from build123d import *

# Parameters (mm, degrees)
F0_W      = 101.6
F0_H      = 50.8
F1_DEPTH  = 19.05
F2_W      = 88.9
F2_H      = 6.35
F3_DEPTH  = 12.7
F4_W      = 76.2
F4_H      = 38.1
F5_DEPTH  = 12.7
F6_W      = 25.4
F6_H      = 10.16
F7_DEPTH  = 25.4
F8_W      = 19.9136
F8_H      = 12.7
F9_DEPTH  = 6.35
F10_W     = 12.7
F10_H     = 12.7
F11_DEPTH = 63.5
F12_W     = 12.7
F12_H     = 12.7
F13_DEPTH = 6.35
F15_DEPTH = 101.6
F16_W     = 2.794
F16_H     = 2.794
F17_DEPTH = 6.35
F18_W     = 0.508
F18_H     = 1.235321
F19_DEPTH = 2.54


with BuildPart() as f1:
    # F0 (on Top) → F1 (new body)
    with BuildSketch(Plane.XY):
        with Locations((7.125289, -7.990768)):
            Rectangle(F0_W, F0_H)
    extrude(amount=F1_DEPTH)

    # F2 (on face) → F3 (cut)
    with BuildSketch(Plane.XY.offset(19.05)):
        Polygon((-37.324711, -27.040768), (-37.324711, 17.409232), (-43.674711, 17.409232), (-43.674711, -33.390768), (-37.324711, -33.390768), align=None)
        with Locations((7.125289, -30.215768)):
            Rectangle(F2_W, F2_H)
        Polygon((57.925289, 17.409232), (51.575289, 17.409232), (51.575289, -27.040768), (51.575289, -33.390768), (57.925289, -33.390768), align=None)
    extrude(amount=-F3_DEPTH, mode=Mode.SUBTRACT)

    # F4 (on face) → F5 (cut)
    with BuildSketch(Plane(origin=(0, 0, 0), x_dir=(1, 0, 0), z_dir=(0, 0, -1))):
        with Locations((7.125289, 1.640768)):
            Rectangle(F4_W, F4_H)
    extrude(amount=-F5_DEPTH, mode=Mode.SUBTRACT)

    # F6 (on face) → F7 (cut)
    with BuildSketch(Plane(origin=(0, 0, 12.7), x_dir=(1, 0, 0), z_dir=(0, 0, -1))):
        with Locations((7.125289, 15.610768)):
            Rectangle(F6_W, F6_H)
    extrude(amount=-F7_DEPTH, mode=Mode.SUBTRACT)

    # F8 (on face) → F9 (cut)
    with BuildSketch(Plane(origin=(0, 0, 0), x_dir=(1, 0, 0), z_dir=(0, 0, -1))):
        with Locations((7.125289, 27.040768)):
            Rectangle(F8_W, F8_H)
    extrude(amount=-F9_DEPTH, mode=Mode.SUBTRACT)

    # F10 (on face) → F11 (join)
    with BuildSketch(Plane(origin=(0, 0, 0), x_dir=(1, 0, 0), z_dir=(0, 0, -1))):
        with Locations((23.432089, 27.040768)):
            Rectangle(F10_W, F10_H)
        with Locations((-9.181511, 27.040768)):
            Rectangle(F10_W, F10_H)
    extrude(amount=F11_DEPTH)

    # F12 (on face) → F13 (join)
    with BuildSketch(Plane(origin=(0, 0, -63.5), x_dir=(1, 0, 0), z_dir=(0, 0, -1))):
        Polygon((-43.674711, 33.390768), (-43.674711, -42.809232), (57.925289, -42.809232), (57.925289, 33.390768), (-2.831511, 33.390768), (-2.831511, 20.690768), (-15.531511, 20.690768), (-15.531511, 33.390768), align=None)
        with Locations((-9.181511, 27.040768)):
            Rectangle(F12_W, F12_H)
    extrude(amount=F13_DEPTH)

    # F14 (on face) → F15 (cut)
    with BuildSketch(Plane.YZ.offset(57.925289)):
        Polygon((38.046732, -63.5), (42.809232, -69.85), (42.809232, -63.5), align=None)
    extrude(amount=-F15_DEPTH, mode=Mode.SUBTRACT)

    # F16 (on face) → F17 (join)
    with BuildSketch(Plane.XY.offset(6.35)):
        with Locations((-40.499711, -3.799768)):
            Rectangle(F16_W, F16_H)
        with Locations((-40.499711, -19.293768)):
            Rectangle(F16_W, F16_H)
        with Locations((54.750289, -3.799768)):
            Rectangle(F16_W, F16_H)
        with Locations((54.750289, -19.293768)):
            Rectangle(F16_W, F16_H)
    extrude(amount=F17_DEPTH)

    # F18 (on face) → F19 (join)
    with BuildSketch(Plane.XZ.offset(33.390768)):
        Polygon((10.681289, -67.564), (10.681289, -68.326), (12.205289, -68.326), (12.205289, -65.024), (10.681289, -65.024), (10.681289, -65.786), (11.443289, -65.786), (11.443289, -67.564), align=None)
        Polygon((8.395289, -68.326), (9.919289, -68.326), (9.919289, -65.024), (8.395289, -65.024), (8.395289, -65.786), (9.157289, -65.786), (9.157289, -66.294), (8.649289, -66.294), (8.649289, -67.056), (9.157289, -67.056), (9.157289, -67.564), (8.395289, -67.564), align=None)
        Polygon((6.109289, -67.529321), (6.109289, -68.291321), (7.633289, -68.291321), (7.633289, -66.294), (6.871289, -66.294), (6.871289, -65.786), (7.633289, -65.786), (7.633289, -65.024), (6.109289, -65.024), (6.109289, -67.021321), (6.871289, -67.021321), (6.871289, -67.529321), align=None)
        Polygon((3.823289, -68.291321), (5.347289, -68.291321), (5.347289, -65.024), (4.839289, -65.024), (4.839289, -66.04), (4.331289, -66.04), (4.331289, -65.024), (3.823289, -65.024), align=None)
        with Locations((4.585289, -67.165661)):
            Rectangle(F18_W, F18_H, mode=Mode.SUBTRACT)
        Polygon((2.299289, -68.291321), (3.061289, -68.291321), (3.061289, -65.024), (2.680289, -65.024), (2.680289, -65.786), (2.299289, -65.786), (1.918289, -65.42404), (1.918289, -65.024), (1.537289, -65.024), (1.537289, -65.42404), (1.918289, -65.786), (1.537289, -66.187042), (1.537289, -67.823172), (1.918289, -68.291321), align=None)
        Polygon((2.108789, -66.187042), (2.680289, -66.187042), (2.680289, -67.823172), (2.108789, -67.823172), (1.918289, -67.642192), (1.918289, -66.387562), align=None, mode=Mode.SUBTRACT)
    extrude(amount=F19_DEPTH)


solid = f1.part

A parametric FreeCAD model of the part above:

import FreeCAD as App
import Part
import Sketcher

V = App.Vector
Q = App.Units.Quantity

doc = App.newDocument("Part")
body = doc.addObject("PartDesign::Body", "Body")

# Sketch on XY plane
sketch1 = body.newObject("Sketcher::SketchObject", "Sketch")
sketch1.AttachmentSupport = (doc.getObject("XY_Plane"), [""])
sketch1.MapMode = "FlatFace"
sketch1.addGeometry(Part.LineSegment(V(-44, 17, 0), V(-44, -33, 0)), False)
sketch1.addGeometry(Part.LineSegment(V(-44, -33, 0), V(58, -33, 0)), False)
sketch1.addGeometry(Part.LineSegment(V(58, -33, 0), V(58, 17, 0)), False)
sketch1.addGeometry(Part.LineSegment(V(58, 17, 0), V(-44, 17, 0)), False)
sketch1.addConstraint(Sketcher.Constraint("Coincident", 0, 2, 1, 1))
sketch1.addConstraint(Sketcher.Constraint("Coincident", 1, 2, 2, 1))
sketch1.addConstraint(Sketcher.Constraint("Coincident", 2, 2, 3, 1))
sketch1.addConstraint(Sketcher.Constraint("Coincident", 3, 2, 0, 1))
sketch1.addConstraint(Sketcher.Constraint("Vertical", 0))
sketch1.addConstraint(Sketcher.Constraint("Horizontal", 1))
sketch1.addConstraint(Sketcher.Constraint("Vertical", 2))
sketch1.addConstraint(Sketcher.Constraint("Horizontal", 3))
sketch1.addConstraint(Sketcher.Constraint("DistanceX", 1, 1, 1, 2, Q("4 in")))
sketch1.addConstraint(Sketcher.Constraint("DistanceY", 0, 2, 0, 1, Q("2 in")))
sketch1.addConstraint(Sketcher.Constraint("DistanceX", 0, 2, -1, 1, Q("43.674711 mm")))
sketch1.addConstraint(Sketcher.Constraint("DistanceY", -1, 1, 2, 2, Q("17.409232 mm")))
pad1 = body.newObject("PartDesign::Pad", "Pad")
pad1.Profile = sketch1
pad1.Length = Q("0.75 in")

# Sketch on XY plane
sketch2 = body.newObject("Sketcher::SketchObject", "Sketch001")
sketch2.AttachmentSupport = (doc.getObject("XY_Plane"), [""])
sketch2.MapMode = "FlatFace"
sketch2.AttachmentOffset = App.Placement(V(0, 0, 0.75 * 25.4), App.Rotation())
sketch2.addGeometry(Part.LineSegment(V(-37, 17, 0), V(-44, 17, 0)), False)
sketch2.addGeometry(Part.LineSegment(V(-44, 17, 0), V(-44, -33, 0)), False)
sketch2.addGeometry(Part.LineSegment(V(-44, -33, 0), V(58, -33, 0)), False)
sketch2.addGeometry(Part.LineSegment(V(58, -33, 0), V(58, 17, 0)), False)
sketch2.addGeometry(Part.LineSegment(V(58, 17, 0), V(52, 17, 0)), False)
sketch2.addGeometry(Part.LineSegment(V(52, 17, 0), V(52, -27, 0)), False)
sketch2.addGeometry(Part.LineSegment(V(52, -27, 0), V(-37, -27, 0)), False)
sketch2.addGeometry(Part.LineSegment(V(-37, -27, 0), V(-37, 17, 0)), False)
sketch2.addConstraint(Sketcher.Constraint("Coincident", 0, 2, 1, 1))
sketch2.addConstraint(Sketcher.Constraint("Coincident", 1, 2, 2, 1))
sketch2.addConstraint(Sketcher.Constraint("Coincident", 2, 2, 3, 1))
sketch2.addConstraint(Sketcher.Constraint("Coincident", 3, 2, 4, 1))
sketch2.addConstraint(Sketcher.Constraint("Coincident", 4, 2, 5, 1))
sketch2.addConstraint(Sketcher.Constraint("Coincident", 5, 2, 6, 1))
sketch2.addConstraint(Sketcher.Constraint("Coincident", 6, 2, 7, 1))
sketch2.addConstraint(Sketcher.Constraint("Coincident", 7, 2, 0, 1))
sketch2.addConstraint(Sketcher.Constraint("Horizontal", 0))
sketch2.addConstraint(Sketcher.Constraint("Vertical", 1))
sketch2.addConstraint(Sketcher.Constraint("Horizontal", 2))
sketch2.addConstraint(Sketcher.Constraint("Vertical", 3))
sketch2.addConstraint(Sketcher.Constraint("Horizontal", 4))
sketch2.addConstraint(Sketcher.Constraint("Vertical", 5))
sketch2.addConstraint(Sketcher.Constraint("Horizontal", 6))
sketch2.addConstraint(Sketcher.Constraint("Vertical", 7))
sketch2.addConstraint(Sketcher.Constraint("Horizontal", 0, 2, 3, 2))
sketch2.addConstraint(Sketcher.Constraint("Equal", 0, 4))
sketch2.addConstraint(Sketcher.Constraint("DistanceX", 2, 1, 2, 2, Q("4 in")))
sketch2.addConstraint(Sketcher.Constraint("DistanceY", 1, 2, 1, 1, Q("2 in")))
sketch2.addConstraint(Sketcher.Constraint("DistanceX", 6, 2, 6, 1, Q("3.5 in")))
sketch2.addConstraint(Sketcher.Constraint("DistanceY", 5, 2, 5, 1, Q("1.75 in")))
sketch2.addConstraint(Sketcher.Constraint("DistanceX", 0, 2, -1, 1, Q("43.674711 mm")))
sketch2.addConstraint(Sketcher.Constraint("DistanceY", -1, 1, 0, 2, Q("17.409232 mm")))
pocket1 = body.newObject("PartDesign::Pocket", "Pocket")
pocket1.Profile = sketch2
pocket1.Length = Q("0.5 in")

# Sketch on XY plane
sketch3 = body.newObject("Sketcher::SketchObject", "Sketch002")
sketch3.AttachmentSupport = (doc.getObject("XY_Plane"), [""])
sketch3.MapMode = "FlatFace"
sketch3.addGeometry(Part.LineSegment(V(-31, -21, 0), V(-31, 17, 0)), False)
sketch3.addGeometry(Part.LineSegment(V(-31, 17, 0), V(45, 17, 0)), False)
sketch3.addGeometry(Part.LineSegment(V(45, 17, 0), V(45, -21, 0)), False)
sketch3.addGeometry(Part.LineSegment(V(45, -21, 0), V(-31, -21, 0)), False)
sketch3.addConstraint(Sketcher.Constraint("Coincident", 0, 2, 1, 1))
sketch3.addConstraint(Sketcher.Constraint("Coincident", 1, 2, 2, 1))
sketch3.addConstraint(Sketcher.Constraint("Coincident", 2, 2, 3, 1))
sketch3.addConstraint(Sketcher.Constraint("Coincident", 3, 2, 0, 1))
sketch3.addConstraint(Sketcher.Constraint("Vertical", 0))
sketch3.addConstraint(Sketcher.Constraint("Horizontal", 1))
sketch3.addConstraint(Sketcher.Constraint("Vertical", 2))
sketch3.addConstraint(Sketcher.Constraint("Horizontal", 3))
sketch3.addConstraint(Sketcher.Constraint("DistanceX", 1, 1, 1, 2, Q("3 in")))
sketch3.addConstraint(Sketcher.Constraint("DistanceY", 0, 1, 0, 2, Q("1.5 in")))
sketch3.addConstraint(Sketcher.Constraint("DistanceX", 0, 2, -1, 1, Q("30.974711 mm")))
sketch3.addConstraint(Sketcher.Constraint("DistanceY", -1, 1, 0, 2, Q("17.409232 mm")))
pocket2 = body.newObject("PartDesign::Pocket", "Pocket001")
pocket2.Profile = sketch3
pocket2.Length = Q("0.5 in")
pocket2.Reversed = True

# Sketch on XY plane
sketch4 = body.newObject("Sketcher::SketchObject", "Sketch003")
sketch4.AttachmentSupport = (doc.getObject("XY_Plane"), [""])
sketch4.MapMode = "FlatFace"
sketch4.AttachmentOffset = App.Placement(V(0, 0, 0.5 * 25.4), App.Rotation())
sketch4.addGeometry(Part.LineSegment(V(-6, -21, 0), V(-6, -11, 0)), False)
sketch4.addGeometry(Part.LineSegment(V(-6, -11, 0), V(20, -11, 0)), False)
sketch4.addGeometry(Part.LineSegment(V(20, -11, 0), V(20, -21, 0)), False)
sketch4.addGeometry(Part.LineSegment(V(20, -21, 0), V(-6, -21, 0)), False)
sketch4.addConstraint(Sketcher.Constraint("Coincident", 0, 2, 1, 1))
sketch4.addConstraint(Sketcher.Constraint("Coincident", 1, 2, 2, 1))
sketch4.addConstraint(Sketcher.Constraint("Coincident", 2, 2, 3, 1))
sketch4.addConstraint(Sketcher.Constraint("Coincident", 3, 2, 0, 1))
sketch4.addConstraint(Sketcher.Constraint("Vertical", 0))
sketch4.addConstraint(Sketcher.Constraint("Horizontal", 1))
sketch4.addConstraint(Sketcher.Constraint("Vertical", 2))
sketch4.addConstraint(Sketcher.Constraint("Horizontal", 3))
sketch4.addConstraint(Sketcher.Constraint("DistanceX", 1, 1, 1, 2, Q("1 in")))
sketch4.addConstraint(Sketcher.Constraint("DistanceY", 0, 1, 0, 2, Q("0.4 in")))
sketch4.addConstraint(Sketcher.Constraint("DistanceX", 0, 2, -1, 1, Q("5.574711 mm")))
sketch4.addConstraint(Sketcher.Constraint("DistanceY", 0, 2, -1, 1, Q("10.530768 mm")))
pocket3 = body.newObject("PartDesign::Pocket", "Pocket002")
pocket3.Profile = sketch4
pocket3.Length = Q("1 in")
pocket3.Reversed = True

# Sketch on XY plane
sketch5 = body.newObject("Sketcher::SketchObject", "Sketch004")
sketch5.AttachmentSupport = (doc.getObject("XY_Plane"), [""])
sketch5.MapMode = "FlatFace"
sketch5.addGeometry(Part.LineSegment(V(-3, -33, 0), V(-3, -21, 0)), False)
sketch5.addGeometry(Part.LineSegment(V(-3, -21, 0), V(17, -21, 0)), False)
sketch5.addGeometry(Part.LineSegment(V(17, -21, 0), V(17, -33, 0)), False)
sketch5.addGeometry(Part.LineSegment(V(17, -33, 0), V(-3, -33, 0)), False)
sketch5.addConstraint(Sketcher.Constraint("Coincident", 0, 2, 1, 1))
sketch5.addConstraint(Sketcher.Constraint("Coincident", 1, 2, 2, 1))
sketch5.addConstraint(Sketcher.Constraint("Coincident", 2, 2, 3, 1))
sketch5.addConstraint(Sketcher.Constraint("Coincident", 3, 2, 0, 1))
sketch5.addConstraint(Sketcher.Constraint("Vertical", 0))
sketch5.addConstraint(Sketcher.Constraint("Horizontal", 1))
sketch5.addConstraint(Sketcher.Constraint("Vertical", 2))
sketch5.addConstraint(Sketcher.Constraint("Horizontal", 3))
sketch5.addConstraint(Sketcher.Constraint("DistanceY", 0, 1, 0, 2, Q("0.5 in")))
sketch5.addConstraint(Sketcher.Constraint("DistanceX", 1, 1, 1, 2, Q("0.784 in")))
sketch5.addConstraint(Sketcher.Constraint("DistanceX", 0, 2, -1, 1, Q("2.831511 mm")))
sketch5.addConstraint(Sketcher.Constraint("DistanceY", 0, 2, -1, 1, Q("20.690768 mm")))
pocket4 = body.newObject("PartDesign::Pocket", "Pocket003")
pocket4.Profile = sketch5
pocket4.Length = Q("0.25 in")
pocket4.Reversed = True

# Sketch on XY plane
sketch6 = body.newObject("Sketcher::SketchObject", "Sketch005")
sketch6.AttachmentSupport = (doc.getObject("XY_Plane"), [""])
sketch6.MapMode = "FlatFace"
sketch6.addGeometry(Part.LineSegment(V(17, -33, 0), V(17, -21, 0)), False)
sketch6.addGeometry(Part.LineSegment(V(17, -21, 0), V(30, -21, 0)), False)
sketch6.addGeometry(Part.LineSegment(V(30, -21, 0), V(30, -33, 0)), False)
sketch6.addGeometry(Part.LineSegment(V(30, -33, 0), V(17, -33, 0)), False)
sketch6.addGeometry(Part.LineSegment(V(-16, -33, 0), V(-16, -21, 0)), False)
sketch6.addGeometry(Part.LineSegment(V(-16, -21, 0), V(-3, -21, 0)), False)
sketch6.addGeometry(Part.LineSegment(V(-3, -21, 0), V(-3, -33, 0)), False)
sketch6.addGeometry(Part.LineSegment(V(-3, -33, 0), V(-16, -33, 0)), False)
sketch6.addConstraint(Sketcher.Constraint("Coincident", 0, 2, 1, 1))
sketch6.addConstraint(Sketcher.Constraint("Coincident", 1, 2, 2, 1))
sketch6.addConstraint(Sketcher.Constraint("Coincident", 2, 2, 3, 1))
sketch6.addConstraint(Sketcher.Constraint("Coincident", 3, 2, 0, 1))
sketch6.addConstraint(Sketcher.Constraint("Coincident", 4, 2, 5, 1))
sketch6.addConstraint(Sketcher.Constraint("Coincident", 5, 2, 6, 1))
sketch6.addConstraint(Sketcher.Constraint("Coincident", 6, 2, 7, 1))
sketch6.addConstraint(Sketcher.Constraint("Coincident", 7, 2, 4, 1))
sketch6.addConstraint(Sketcher.Constraint("Vertical", 0))
sketch6.addConstraint(Sketcher.Constraint("Horizontal", 1))
sketch6.addConstraint(Sketcher.Constraint("Vertical", 2))
sketch6.addConstraint(Sketcher.Constraint("Horizontal", 3))
sketch6.addConstraint(Sketcher.Constraint("Vertical", 4))
sketch6.addConstraint(Sketcher.Constraint("Horizontal", 5))
sketch6.addConstraint(Sketcher.Constraint("Vertical", 6))
sketch6.addConstraint(Sketcher.Constraint("Horizontal", 7))
sketch6.addConstraint(Sketcher.Constraint("Horizontal", 1, 2, 4, 2))
sketch6.addConstraint(Sketcher.Constraint("Horizontal", 3, 2, 6, 2))
sketch6.addConstraint(Sketcher.Constraint("Equal", 3, 5))
sketch6.addConstraint(Sketcher.Constraint("Equal", 7, 0))
sketch6.addConstraint(Sketcher.Constraint("DistanceX", 1, 1, 1, 2, Q("0.5 in")))
sketch6.addConstraint(Sketcher.Constraint("DistanceX", 4, 2, 0, 2, Q("1.284 in")))
sketch6.addConstraint(Sketcher.Constraint("DistanceX", -1, 1, 0, 2, Q("17.082089 mm")))
sketch6.addConstraint(Sketcher.Constraint("DistanceY", 0, 2, -1, 1, Q("20.690768 mm")))
pad2 = body.newObject("PartDesign::Pad", "Pad001")
pad2.Profile = sketch6
pad2.Length = Q("2.5 in")
pad2.Reversed = True

# Sketch on XY plane
sketch7 = body.newObject("Sketcher::SketchObject", "Sketch006")
sketch7.AttachmentSupport = (doc.getObject("XY_Plane"), [""])
sketch7.MapMode = "FlatFace"
sketch7.AttachmentOffset = App.Placement(V(0, 0, -2.5 * 25.4), App.Rotation())
sketch7.addGeometry(Part.LineSegment(V(-44, -33, 0), V(-44, 43, 0)), False)
sketch7.addGeometry(Part.LineSegment(V(-44, 43, 0), V(58, 43, 0)), False)
sketch7.addGeometry(Part.LineSegment(V(58, 43, 0), V(58, -33, 0)), False)
sketch7.addGeometry(Part.LineSegment(V(58, -33, 0), V(-44, -33, 0)), False)
sketch7.addConstraint(Sketcher.Constraint("Coincident", 0, 2, 1, 1))
sketch7.addConstraint(Sketcher.Constraint("Coincident", 1, 2, 2, 1))
sketch7.addConstraint(Sketcher.Constraint("Coincident", 2, 2, 3, 1))
sketch7.addConstraint(Sketcher.Constraint("Coincident", 3, 2, 0, 1))
sketch7.addConstraint(Sketcher.Constraint("Vertical", 0))
sketch7.addConstraint(Sketcher.Constraint("Horizontal", 1))
sketch7.addConstraint(Sketcher.Constraint("Vertical", 2))
sketch7.addConstraint(Sketcher.Constraint("Horizontal", 3))
sketch7.addConstraint(Sketcher.Constraint("DistanceX", 1, 1, 1, 2, Q("4 in")))
sketch7.addConstraint(Sketcher.Constraint("DistanceY", 0, 1, 0, 2, Q("3 in")))
sketch7.addConstraint(Sketcher.Constraint("DistanceX", 0, 2, -1, 1, Q("43.674711 mm")))
sketch7.addConstraint(Sketcher.Constraint("DistanceY", -1, 1, 0, 2, Q("42.809232 mm")))
pad3 = body.newObject("PartDesign::Pad", "Pad002")
pad3.Profile = sketch7
pad3.Length = Q("0.25 in")
pad3.Reversed = True

# Sketch on YZ plane
sketch8 = body.newObject("Sketcher::SketchObject", "Sketch007")
sketch8.AttachmentSupport = (doc.getObject("YZ_Plane"), [""])
sketch8.MapMode = "FlatFace"
sketch8.AttachmentOffset = App.Placement(V(0, 0, 57.925289), App.Rotation())
sketch8.addGeometry(Part.LineSegment(V(38, -63.5, 0), V(42.8, -69.8, 0)), False)
sketch8.addGeometry(Part.LineSegment(V(42.8, -69.8, 0), V(42.8, -63.5, 0)), False)
sketch8.addGeometry(Part.LineSegment(V(42.8, -63.5, 0), V(38, -63.5, 0)), False)
sketch8.addConstraint(Sketcher.Constraint("Coincident", 0, 2, 1, 1))
sketch8.addConstraint(Sketcher.Constraint("Coincident", 1, 2, 2, 1))
sketch8.addConstraint(Sketcher.Constraint("Coincident", 2, 2, 0, 1))
sketch8.addConstraint(Sketcher.Constraint("Vertical", 1))
sketch8.addConstraint(Sketcher.Constraint("Horizontal", 2))
sketch8.addConstraint(Sketcher.Constraint("DistanceY", 1, 1, 1, 2, Q("0.25 in")))
sketch8.addConstraint(Sketcher.Constraint("DistanceY", 1, 2, -1, 1, Q("2.5 in")))
sketch8.addConstraint(Sketcher.Constraint("DistanceX", 2, 2, 2, 1, Q("0.1875 in")))
sketch8.addConstraint(Sketcher.Constraint("DistanceX", -1, 1, 0, 2, Q("42.809232 mm")))
pocket5 = body.newObject("PartDesign::Pocket", "Pocket004")
pocket5.Profile = sketch8
pocket5.Length = Q("4 in")

# Sketch on XY plane
sketch9 = body.newObject("Sketcher::SketchObject", "Sketch008")
sketch9.AttachmentSupport = (doc.getObject("XY_Plane"), [""])
sketch9.MapMode = "FlatFace"
sketch9.AttachmentOffset = App.Placement(V(0, 0, 0.25 * 25.4), App.Rotation())
sketch9.addGeometry(Part.LineSegment(V(-41.9, -2.4, 0), V(-41.9, -5.2, 0)), False)
sketch9.addGeometry(Part.LineSegment(V(-41.9, -5.2, 0), V(-39.1, -5.2, 0)), False)
sketch9.addGeometry(Part.LineSegment(V(-39.1, -5.2, 0), V(-39.1, -2.4, 0)), False)
sketch9.addGeometry(Part.LineSegment(V(-39.1, -2.4, 0), V(-41.9, -2.4, 0)), False)
sketch9.addGeometry(Part.LineSegment(V(-41.9, -17.9, 0), V(-41.9, -20.7, 0)), False)
sketch9.addGeometry(Part.LineSegment(V(-41.9, -20.7, 0), V(-39.1, -20.7, 0)), False)
sketch9.addGeometry(Part.LineSegment(V(-39.1, -20.7, 0), V(-39.1, -17.9, 0)), False)
sketch9.addGeometry(Part.LineSegment(V(-39.1, -17.9, 0), V(-41.9, -17.9, 0)), False)
sketch9.addGeometry(Part.LineSegment(V(53.4, -2.4, 0), V(53.4, -5.2, 0)), False)
sketch9.addGeometry(Part.LineSegment(V(53.4, -5.2, 0), V(56.1, -5.2, 0)), False)
sketch9.addGeometry(Part.LineSegment(V(56.1, -5.2, 0), V(56.1, -2.4, 0)), False)
sketch9.addGeometry(Part.LineSegment(V(56.1, -2.4, 0), V(53.4, -2.4, 0)), False)
sketch9.addGeometry(Part.LineSegment(V(53.4, -17.9, 0), V(53.4, -20.7, 0)), False)
sketch9.addGeometry(Part.LineSegment(V(53.4, -20.7, 0), V(56.1, -20.7, 0)), False)
sketch9.addGeometry(Part.LineSegment(V(56.1, -20.7, 0), V(56.1, -17.9, 0)), False)
sketch9.addGeometry(Part.LineSegment(V(56.1, -17.9, 0), V(53.4, -17.9, 0)), False)
sketch9.addConstraint(Sketcher.Constraint("Coincident", 0, 2, 1, 1))
sketch9.addConstraint(Sketcher.Constraint("Coincident", 1, 2, 2, 1))
sketch9.addConstraint(Sketcher.Constraint("Coincident", 2, 2, 3, 1))
sketch9.addConstraint(Sketcher.Constraint("Coincident", 3, 2, 0, 1))
sketch9.addConstraint(Sketcher.Constraint("Coincident", 4, 2, 5, 1))
sketch9.addConstraint(Sketcher.Constraint("Coincident", 5, 2, 6, 1))
sketch9.addConstraint(Sketcher.Constraint("Coincident", 6, 2, 7, 1))
sketch9.addConstraint(Sketcher.Constraint("Coincident", 7, 2, 4, 1))
sketch9.addConstraint(Sketcher.Constraint("Coincident", 8, 2, 9, 1))
sketch9.addConstraint(Sketcher.Constraint("Coincident", 9, 2, 10, 1))
sketch9.addConstraint(Sketcher.Constraint("Coincident", 10, 2, 11, 1))
sketch9.addConstraint(Sketcher.Constraint("Coincident", 11, 2, 8, 1))
sketch9.addConstraint(Sketcher.Constraint("Coincident", 12, 2, 13, 1))
sketch9.addConstraint(Sketcher.Constraint("Coincident", 13, 2, 14, 1))
sketch9.addConstraint(Sketcher.Constraint("Coincident", 14, 2, 15, 1))
sketch9.addConstraint(Sketcher.Constraint("Coincident", 15, 2, 12, 1))
sketch9.addConstraint(Sketcher.Constraint("Vertical", 0))
sketch9.addConstraint(Sketcher.Constraint("Horizontal", 1))
sketch9.addConstraint(Sketcher.Constraint("Vertical", 2))
sketch9.addConstraint(Sketcher.Constraint("Horizontal", 3))
sketch9.addConstraint(Sketcher.Constraint("Vertical", 4))
sketch9.addConstraint(Sketcher.Constraint("Horizontal", 5))
sketch9.addConstraint(Sketcher.Constraint("Vertical", 6))
sketch9.addConstraint(Sketcher.Constraint("Horizontal", 7))
sketch9.addConstraint(Sketcher.Constraint("Vertical", 8))
sketch9.addConstraint(Sketcher.Constraint("Horizontal", 9))
sketch9.addConstraint(Sketcher.Constraint("Vertical", 10))
sketch9.addConstraint(Sketcher.Constraint("Horizontal", 11))
sketch9.addConstraint(Sketcher.Constraint("Vertical", 12))
sketch9.addConstraint(Sketcher.Constraint("Horizontal", 13))
sketch9.addConstraint(Sketcher.Constraint("Vertical", 14))
sketch9.addConstraint(Sketcher.Constraint("Horizontal", 15))
sketch9.addConstraint(Sketcher.Constraint("Horizontal", 1, 2, 8, 2))
sketch9.addConstraint(Sketcher.Constraint("Horizontal", 3, 2, 10, 2))
sketch9.addConstraint(Sketcher.Constraint("Horizontal", 5, 2, 12, 2))
sketch9.addConstraint(Sketcher.Constraint("Horizontal", 7, 2, 14, 2))
sketch9.addConstraint(Sketcher.Constraint("Vertical", 3, 2, 4, 2))
sketch9.addConstraint(Sketcher.Constraint("Vertical", 2, 2, 5, 2))
sketch9.addConstraint(Sketcher.Constraint("Vertical", 11, 2, 12, 2))
sketch9.addConstraint(Sketcher.Constraint("Vertical", 10, 2, 13, 2))
sketch9.addConstraint(Sketcher.Constraint("Equal", 7, 9))
sketch9.addConstraint(Sketcher.Constraint("Equal", 15, 0))
sketch9.addConstraint(Sketcher.Constraint("Equal", 2, 4))
sketch9.addConstraint(Sketcher.Constraint("DistanceX", 1, 1, 1, 2, Q("0.11 in")))
sketch9.addConstraint(Sketcher.Constraint("DistanceY", 6, 2, 1, 2, Q("0.5 in")))
sketch9.addConstraint(Sketcher.Constraint("DistanceX", 1, 2, 8, 2, Q("3.64 in")))
sketch9.addConstraint(Sketcher.Constraint("DistanceX", 0, 2, -1, 1, Q("41.896711 mm")))
sketch9.addConstraint(Sketcher.Constraint("DistanceY", 2, 2, -1, 1, Q("2.402768 mm")))
pad4 = body.newObject("PartDesign::Pad", "Pad003")
pad4.Profile = sketch9
pad4.Length = Q("0.25 in")

# Sketch on XZ plane
sketch10 = body.newObject("Sketcher::SketchObject", "Sketch009")
sketch10.AttachmentSupport = (doc.getObject("XZ_Plane"), [""])
sketch10.MapMode = "FlatFace"
sketch10.AttachmentOffset = App.Placement(V(0, 0, 33.390768), App.Rotation())
sketch10.addGeometry(Part.LineSegment(V(10.68, -67.56, 0), V(10.68, -68.33, 0)), False)
sketch10.addGeometry(Part.LineSegment(V(10.68, -68.33, 0), V(12.21, -68.33, 0)), False)
sketch10.addGeometry(Part.LineSegment(V(12.21, -68.33, 0), V(12.21, -65.02, 0)), False)
sketch10.addGeometry(Part.LineSegment(V(12.21, -65.02, 0), V(10.68, -65.02, 0)), False)
sketch10.addGeometry(Part.LineSegment(V(10.68, -65.02, 0), V(10.68, -65.79, 0)), False)
sketch10.addGeometry(Part.LineSegment(V(10.68, -65.79, 0), V(11.44, -65.79, 0)), False)
sketch10.addGeometry(Part.LineSegment(V(11.44, -65.79, 0), V(11.44, -67.56, 0)), False)
sketch10.addGeometry(Part.LineSegment(V(11.44, -67.56, 0), V(10.68, -67.56, 0)), False)
sketch10.addGeometry(Part.LineSegment(V(8.4, -68.33, 0), V(9.92, -68.33, 0)), False)
sketch10.addGeometry(Part.LineSegment(V(9.92, -68.33, 0), V(9.92, -65.02, 0)), False)
sketch10.addGeometry(Part.LineSegment(V(9.92, -65.02, 0), V(8.4, -65.02, 0)), False)
sketch10.addGeometry(Part.LineSegment(V(8.4, -65.02, 0), V(8.4, -65.79, 0)), False)
sketch10.addGeometry(Part.LineSegment(V(8.4, -65.79, 0), V(9.16, -65.79, 0)), False)
sketch10.addGeometry(Part.LineSegment(V(9.16, -65.79, 0), V(9.16, -66.29, 0)), False)
sketch10.addGeometry(Part.LineSegment(V(9.16, -66.29, 0), V(8.65, -66.29, 0)), False)
sketch10.addGeometry(Part.LineSegment(V(8.65, -66.29, 0), V(8.65, -67.06, 0)), False)
sketch10.addGeometry(Part.LineSegment(V(8.65, -67.06, 0), V(9.16, -67.06, 0)), False)
sketch10.addGeometry(Part.LineSegment(V(9.16, -67.06, 0), V(9.16, -67.56, 0)), False)
sketch10.addGeometry(Part.LineSegment(V(9.16, -67.56, 0), V(8.4, -67.56, 0)), False)
sketch10.addGeometry(Part.LineSegment(V(8.4, -67.56, 0), V(8.4, -68.33, 0)), False)
sketch10.addGeometry(Part.LineSegment(V(6.11, -67.53, 0), V(6.11, -68.29, 0)), False)
sketch10.addGeometry(Part.LineSegment(V(6.11, -68.29, 0), V(7.63, -68.29, 0)), False)
sketch10.addGeometry(Part.LineSegment(V(7.63, -68.29, 0), V(7.63, -66.29, 0)), False)
sketch10.addGeometry(Part.LineSegment(V(7.63, -66.29, 0), V(6.87, -66.29, 0)), False)
sketch10.addGeometry(Part.LineSegment(V(6.87, -66.29, 0), V(6.87, -65.79, 0)), False)
sketch10.addGeometry(Part.LineSegment(V(6.87, -65.79, 0), V(7.63, -65.79, 0)), False)
sketch10.addGeometry(Part.LineSegment(V(7.63, -65.79, 0), V(7.63, -65.02, 0)), False)
sketch10.addGeometry(Part.LineSegment(V(7.63, -65.02, 0), V(6.11, -65.02, 0)), False)
sketch10.addGeometry(Part.LineSegment(V(6.11, -65.02, 0), V(6.11, -67.02, 0)), False)
sketch10.addGeometry(Part.LineSegment(V(6.11, -67.02, 0), V(6.87, -67.02, 0)), False)
sketch10.addGeometry(Part.LineSegment(V(6.87, -67.02, 0), V(6.87, -67.53, 0)), False)
sketch10.addGeometry(Part.LineSegment(V(6.87, -67.53, 0), V(6.11, -67.53, 0)), False)
sketch10.addGeometry(Part.LineSegment(V(3.82, -68.29, 0), V(5.35, -68.29, 0)), False)
sketch10.addGeometry(Part.LineSegment(V(5.35, -68.29, 0), V(5.35, -65.02, 0)), False)
sketch10.addGeometry(Part.LineSegment(V(5.35, -65.02, 0), V(4.84, -65.02, 0)), False)
sketch10.addGeometry(Part.LineSegment(V(4.84, -65.02, 0), V(4.84, -66.04, 0)), False)
sketch10.addGeometry(Part.LineSegment(V(4.84, -66.04, 0), V(4.33, -66.04, 0)), False)
sketch10.addGeometry(Part.LineSegment(V(4.33, -66.04, 0), V(4.33, -65.02, 0)), False)
sketch10.addGeometry(Part.LineSegment(V(4.33, -65.02, 0), V(3.82, -65.02, 0)), False)
sketch10.addGeometry(Part.LineSegment(V(3.82, -65.02, 0), V(3.82, -68.29, 0)), False)
sketch10.addGeometry(Part.LineSegment(V(4.84, -67.78, 0), V(4.33, -67.78, 0)), False)
sketch10.addGeometry(Part.LineSegment(V(4.33, -67.78, 0), V(4.33, -66.55, 0)), False)
sketch10.addGeometry(Part.LineSegment(V(4.33, -66.55, 0), V(4.84, -66.55, 0)), False)
sketch10.addGeometry(Part.LineSegment(V(4.84, -66.55, 0), V(4.84, -67.78, 0)), False)
sketch10.addGeometry(Part.LineSegment(V(3.06, -68.29, 0), V(3.06, -65.02, 0)), False)
sketch10.addGeometry(Part.LineSegment(V(3.06, -65.02, 0), V(2.68, -65.02, 0)), False)
sketch10.addGeometry(Part.LineSegment(V(2.68, -65.02, 0), V(2.68, -65.79, 0)), False)
sketch10.addGeometry(Part.LineSegment(V(2.68, -65.79, 0), V(2.3, -65.79, 0)), False)
sketch10.addGeometry(Part.LineSegment(V(2.3, -65.79, 0), V(1.92, -65.42, 0)), False)
sketch10.addGeometry(Part.LineSegment(V(1.92, -65.42, 0), V(1.92, -65.02, 0)), False)
sketch10.addGeometry(Part.LineSegment(V(1.92, -65.02, 0), V(1.54, -65.02, 0)), False)
sketch10.addGeometry(Part.LineSegment(V(1.54, -65.02, 0), V(1.54, -65.42, 0)), False)
sketch10.addGeometry(Part.LineSegment(V(1.54, -65.42, 0), V(1.92, -65.79, 0)), False)
sketch10.addGeometry(Part.LineSegment(V(1.92, -65.79, 0), V(1.54, -66.19, 0)), False)
sketch10.addGeometry(Part.LineSegment(V(1.54, -66.19, 0), V(1.54, -67.82, 0)), False)
sketch10.addGeometry(Part.LineSegment(V(1.54, -67.82, 0), V(1.92, -68.29, 0)), False)
sketch10.addGeometry(Part.LineSegment(V(1.92, -68.29, 0), V(3.06, -68.29, 0)), False)
sketch10.addGeometry(Part.LineSegment(V(1.92, -66.39, 0), V(2.11, -66.19, 0)), False)
sketch10.addGeometry(Part.LineSegment(V(2.11, -66.19, 0), V(2.68, -66.19, 0)), False)
sketch10.addGeometry(Part.LineSegment(V(2.68, -66.19, 0), V(2.68, -67.82, 0)), False)
sketch10.addGeometry(Part.LineSegment(V(2.68, -67.82, 0), V(2.11, -67.82, 0)), False)
sketch10.addGeometry(Part.LineSegment(V(2.11, -67.82, 0), V(1.92, -67.64, 0)), False)
sketch10.addGeometry(Part.LineSegment(V(1.92, -67.64, 0), V(1.92, -66.39, 0)), False)
sketch10.addConstraint(Sketcher.Constraint("Coincident", 0, 2, 1, 1))
sketch10.addConstraint(Sketcher.Constraint("Coincident", 1, 2, 2, 1))
sketch10.addConstraint(Sketcher.Constraint("Coincident", 2, 2, 3, 1))
sketch10.addConstraint(Sketcher.Constraint("Coincident", 3, 2, 4, 1))
sketch10.addConstraint(Sketcher.Constraint("Coincident", 4, 2, 5, 1))
sketch10.addConstraint(Sketcher.Constraint("Coincident", 5, 2, 6, 1))
sketch10.addConstraint(Sketcher.Constraint("Coincident", 6, 2, 7, 1))
sketch10.addConstraint(Sketcher.Constraint("Coincident", 7, 2, 0, 1))
sketch10.addConstraint(Sketcher.Constraint("Coincident", 8, 2, 9, 1))
sketch10.addConstraint(Sketcher.Constraint("Coincident", 9, 2, 10, 1))
sketch10.addConstraint(Sketcher.Constraint("Coincident", 10, 2, 11, 1))
sketch10.addConstraint(Sketcher.Constraint("Coincident", 11, 2, 12, 1))
sketch10.addConstraint(Sketcher.Constraint("Coincident", 12, 2, 13, 1))
sketch10.addConstraint(Sketcher.Constraint("Coincident", 13, 2, 14, 1))
sketch10.addConstraint(Sketcher.Constraint("Coincident", 14, 2, 15, 1))
sketch10.addConstraint(Sketcher.Constraint("Coincident", 15, 2, 16, 1))
sketch10.addConstraint(Sketcher.Constraint("Coincident", 16, 2, 17, 1))
sketch10.addConstraint(Sketcher.Constraint("Coincident", 17, 2, 18, 1))
sketch10.addConstraint(Sketcher.Constraint("Coincident", 18, 2, 19, 1))
sketch10.addConstraint(Sketcher.Constraint("Coincident", 19, 2, 8, 1))
sketch10.addConstraint(Sketcher.Constraint("Coincident", 20, 2, 21, 1))
sketch10.addConstraint(Sketcher.Constraint("Coincident", 21, 2, 22, 1))
sketch10.addConstraint(Sketcher.Constraint("Coincident", 22, 2, 23, 1))
sketch10.addConstraint(Sketcher.Constraint("Coincident", 23, 2, 24, 1))
sketch10.addConstraint(Sketcher.Constraint("Coincident", 24, 2, 25, 1))
sketch10.addConstraint(Sketcher.Constraint("Coincident", 25, 2, 26, 1))
sketch10.addConstraint(Sketcher.Constraint("Coincident", 26, 2, 27, 1))
sketch10.addConstraint(Sketcher.Constraint("Coincident", 27, 2, 28, 1))
sketch10.addConstraint(Sketcher.Constraint("Coincident", 28, 2, 29, 1))
sketch10.addConstraint(Sketcher.Constraint("Coincident", 29, 2, 30, 1))
sketch10.addConstraint(Sketcher.Constraint("Coincident", 30, 2, 31, 1))
sketch10.addConstraint(Sketcher.Constraint("Coincident", 31, 2, 20, 1))
sketch10.addConstraint(Sketcher.Constraint("Coincident", 32, 2, 33, 1))
sketch10.addConstraint(Sketcher.Constraint("Coincident", 33, 2, 34, 1))
sketch10.addConstraint(Sketcher.Constraint("Coincident", 34, 2, 35, 1))
sketch10.addConstraint(Sketcher.Constraint("Coincident", 35, 2, 36, 1))
sketch10.addConstraint(Sketcher.Constraint("Coincident", 36, 2, 37, 1))
sketch10.addConstraint(Sketcher.Constraint("Coincident", 37, 2, 38, 1))
sketch10.addConstraint(Sketcher.Constraint("Coincident", 38, 2, 39, 1))
sketch10.addConstraint(Sketcher.Constraint("Coincident", 39, 2, 32, 1))
sketch10.addConstraint(Sketcher.Constraint("Coincident", 40, 2, 41, 1))
sketch10.addConstraint(Sketcher.Constraint("Coincident", 41, 2, 42, 1))
sketch10.addConstraint(Sketcher.Constraint("Coincident", 42, 2, 43, 1))
sketch10.addConstraint(Sketcher.Constraint("Coincident", 43, 2, 40, 1))
sketch10.addConstraint(Sketcher.Constraint("Coincident", 44, 2, 45, 1))
sketch10.addConstraint(Sketcher.Constraint("Coincident", 45, 2, 46, 1))
sketch10.addConstraint(Sketcher.Constraint("Coincident", 46, 2, 47, 1))
sketch10.addConstraint(Sketcher.Constraint("Coincident", 47, 2, 48, 1))
sketch10.addConstraint(Sketcher.Constraint("Coincident", 48, 2, 49, 1))
sketch10.addConstraint(Sketcher.Constraint("Coincident", 49, 2, 50, 1))
sketch10.addConstraint(Sketcher.Constraint("Coincident", 50, 2, 51, 1))
sketch10.addConstraint(Sketcher.Constraint("Coincident", 51, 2, 52, 1))
sketch10.addConstraint(Sketcher.Constraint("Coincident", 52, 2, 53, 1))
sketch10.addConstraint(Sketcher.Constraint("Coincident", 53, 2, 54, 1))
sketch10.addConstraint(Sketcher.Constraint("Coincident", 54, 2, 55, 1))
sketch10.addConstraint(Sketcher.Constraint("Coincident", 55, 2, 56, 1))
sketch10.addConstraint(Sketcher.Constraint("Coincident", 56, 2, 44, 1))
sketch10.addConstraint(Sketcher.Constraint("Coincident", 57, 2, 58, 1))
sketch10.addConstraint(Sketcher.Constraint("Coincident", 58, 2, 59, 1))
sketch10.addConstraint(Sketcher.Constraint("Coincident", 59, 2, 60, 1))
sketch10.addConstraint(Sketcher.Constraint("Coincident", 60, 2, 61, 1))
sketch10.addConstraint(Sketcher.Constraint("Coincident", 61, 2, 62, 1))
sketch10.addConstraint(Sketcher.Constraint("Coincident", 62, 2, 57, 1))
sketch10.addConstraint(Sketcher.Constraint("Vertical", 0))
sketch10.addConstraint(Sketcher.Constraint("Horizontal", 1))
sketch10.addConstraint(Sketcher.Constraint("Vertical", 2))
sketch10.addConstraint(Sketcher.Constraint("Horizontal", 3))
sketch10.addConstraint(Sketcher.Constraint("Vertical", 4))
sketch10.addConstraint(Sketcher.Constraint("Horizontal", 5))
sketch10.addConstraint(Sketcher.Constraint("Vertical", 6))
sketch10.addConstraint(Sketcher.Constraint("Horizontal", 7))
sketch10.addConstraint(Sketcher.Constraint("Horizontal", 8))
sketch10.addConstraint(Sketcher.Constraint("Vertical", 9))
sketch10.addConstraint(Sketcher.Constraint("Horizontal", 10))
sketch10.addConstraint(Sketcher.Constraint("Vertical", 11))
sketch10.addConstraint(Sketcher.Constraint("Horizontal", 12))
sketch10.addConstraint(Sketcher.Constraint("Vertical", 13))
sketch10.addConstraint(Sketcher.Constraint("Horizontal", 14))
sketch10.addConstraint(Sketcher.Constraint("Vertical", 15))
sketch10.addConstraint(Sketcher.Constraint("Horizontal", 16))
sketch10.addConstraint(Sketcher.Constraint("Vertical", 17))
sketch10.addConstraint(Sketcher.Constraint("Horizontal", 18))
sketch10.addConstraint(Sketcher.Constraint("Vertical", 19))
sketch10.addConstraint(Sketcher.Constraint("Vertical", 20))
sketch10.addConstraint(Sketcher.Constraint("Horizontal", 21))
sketch10.addConstraint(Sketcher.Constraint("Vertical", 22))
sketch10.addConstraint(Sketcher.Constraint("Horizontal", 23))
sketch10.addConstraint(Sketcher.Constraint("Vertical", 24))
sketch10.addConstraint(Sketcher.Constraint("Horizontal", 25))
sketch10.addConstraint(Sketcher.Constraint("Vertical", 26))
sketch10.addConstraint(Sketcher.Constraint("Horizontal", 27))
sketch10.addConstraint(Sketcher.Constraint("Vertical", 28))
sketch10.addConstraint(Sketcher.Constraint("Horizontal", 29))
sketch10.addConstraint(Sketcher.Constraint("Vertical", 30))
sketch10.addConstraint(Sketcher.Constraint("Horizontal", 31))
sketch10.addConstraint(Sketcher.Constraint("Horizontal", 32))
sketch10.addConstraint(Sketcher.Constraint("Vertical", 33))
sketch10.addConstraint(Sketcher.Constraint("Horizontal", 34))
sketch10.addConstraint(Sketcher.Constraint("Vertical", 35))
sketch10.addConstraint(Sketcher.Constraint("Horizontal", 36))
sketch10.addConstraint(Sketcher.Constraint("Vertical", 37))
sketch10.addConstraint(Sketcher.Constraint("Horizontal", 38))
sketch10.addConstraint(Sketcher.Constraint("Vertical", 39))
sketch10.addConstraint(Sketcher.Constraint("Horizontal", 40))
sketch10.addConstraint(Sketcher.Constraint("Vertical", 41))
sketch10.addConstraint(Sketcher.Constraint("Horizontal", 42))
sketch10.addConstraint(Sketcher.Constraint("Vertical", 43))
sketch10.addConstraint(Sketcher.Constraint("Vertical", 44))
sketch10.addConstraint(Sketcher.Constraint("Horizontal", 45))
sketch10.addConstraint(Sketcher.Constraint("Vertical", 46))
sketch10.addConstraint(Sketcher.Constraint("Horizontal", 47))
sketch10.addConstraint(Sketcher.Constraint("Vertical", 49))
sketch10.addConstraint(Sketcher.Constraint("Horizontal", 50))
sketch10.addConstraint(Sketcher.Constraint("Vertical", 51))
sketch10.addConstraint(Sketcher.Constraint("Vertical", 54))
sketch10.addConstraint(Sketcher.Constraint("Horizontal", 56))
sketch10.addConstraint(Sketcher.Constraint("Horizontal", 58))
sketch10.addConstraint(Sketcher.Constraint("Vertical", 59))
sketch10.addConstraint(Sketcher.Constraint("Horizontal", 60))
sketch10.addConstraint(Sketcher.Constraint("Vertical", 62))
sketch10.addConstraint(Sketcher.Constraint("Parallel", 48, 52))
sketch10.addConstraint(Sketcher.Constraint("Perpendicular", 52, 53))
sketch10.addConstraint(Sketcher.Constraint("Perpendicular", 52, 57))
sketch10.addConstraint(Sketcher.Constraint("Perpendicular", 57, 61))
sketch10.addConstraint(Sketcher.Constraint("Horizontal", 1, 2, 8, 2))
sketch10.addConstraint(Sketcher.Constraint("Horizontal", 3, 2, 9, 2))
sketch10.addConstraint(Sketcher.Constraint("Horizontal", 5, 2, 11, 2))
sketch10.addConstraint(Sketcher.Constraint("Horizontal", 7, 2, 17, 2))
sketch10.addConstraint(Sketcher.Constraint("Horizontal", 14, 2, 22, 2))
sketch10.addConstraint(Sketcher.Constraint("Horizontal", 12, 2, 24, 2))
sketch10.addConstraint(Sketcher.Constraint("Horizontal", 10, 2, 26, 2))
sketch10.addConstraint(Sketcher.Constraint("Horizontal", 21, 2, 32, 2))
sketch10.addConstraint(Sketcher.Constraint("Horizontal", 27, 2, 33, 2))
sketch10.addConstraint(Sketcher.Constraint("Horizontal", 34, 2, 37, 2))
sketch10.addConstraint(Sketcher.Constraint("Horizontal", 38, 2, 44, 2))
sketch10.addConstraint(Sketcher.Constraint("Horizontal", 25, 2, 46, 2))
sketch10.addConstraint(Sketcher.Constraint("Horizontal", 45, 2, 49, 2))
sketch10.addConstraint(Sketcher.Constraint("Horizontal", 48, 2, 51, 2))
sketch10.addConstraint(Sketcher.Constraint("Horizontal", 47, 2, 52, 2))
sketch10.addConstraint(Sketcher.Constraint("Horizontal", 39, 2, 55, 2))
sketch10.addConstraint(Sketcher.Constraint("Horizontal", 53, 2, 57, 2))
sketch10.addConstraint(Sketcher.Constraint("Horizontal", 54, 2, 59, 2))
sketch10.addConstraint(Sketcher.Constraint("Vertical", 0, 2, 3, 2))
sketch10.addConstraint(Sketcher.Constraint("Vertical", 13, 2, 16, 2))
sketch10.addConstraint(Sketcher.Constraint("Vertical", 11, 2, 18, 2))
sketch10.addConstraint(Sketcher.Constraint("Vertical", 22, 2, 25, 2))
sketch10.addConstraint(Sketcher.Constraint("Vertical", 20, 2, 27, 2))
sketch10.addConstraint(Sketcher.Constraint("Vertical", 24, 2, 29, 2))
sketch10.addConstraint(Sketcher.Constraint("Vertical", 37, 2, 40, 2))
sketch10.addConstraint(Sketcher.Constraint("Vertical", 35, 2, 42, 2))
sketch10.addConstraint(Sketcher.Constraint("Vertical", 49, 2, 52, 2))
sketch10.addConstraint(Sketcher.Constraint("Vertical", 51, 2, 53, 2))
sketch10.addConstraint(Sketcher.Constraint("Vertical", 52, 2, 55, 2))
sketch10.addConstraint(Sketcher.Constraint("Vertical", 46, 2, 58, 2))
sketch10.addConstraint(Sketcher.Constraint("Vertical", 57, 2, 60, 2))
sketch10.addConstraint(Sketcher.Constraint("Vertical", 55, 2, 61, 2))
sketch10.addConstraint(Sketcher.Constraint("Equal", 3, 8))
sketch10.addConstraint(Sketcher.Constraint("Equal", 7, 12))
sketch10.addConstraint(Sketcher.Constraint("Equal", 10, 21))
sketch10.addConstraint(Sketcher.Constraint("Equal", 18, 23))
sketch10.addConstraint(Sketcher.Constraint("Equal", 25, 29))
sketch10.addConstraint(Sketcher.Constraint("Equal", 27, 32))
sketch10.addConstraint(Sketcher.Constraint("Equal", 16, 34))
sketch10.addConstraint(Sketcher.Constraint("Equal", 34, 36))
sketch10.addConstraint(Sketcher.Constraint("Equal", 36, 38))
sketch10.addConstraint(Sketcher.Constraint("Equal", 45, 47))
sketch10.addConstraint(Sketcher.Constraint("Equal", 47, 50))
sketch10.addConstraint(Sketcher.Constraint("Equal", 31, 0))
sketch10.addConstraint(Sketcher.Constraint("Equal", 0, 4))
sketch10.addConstraint(Sketcher.Constraint("Equal", 42, 13))
sketch10.addConstraint(Sketcher.Constraint("Equal", 11, 15))
sketch10.addConstraint(Sketcher.Constraint("Equal", 13, 17))
sketch10.addConstraint(Sketcher.Constraint("Equal", 19, 20))
sketch10.addConstraint(Sketcher.Constraint("Equal", 22, 28))
sketch10.addConstraint(Sketcher.Constraint("DistanceX", 1, 1, 1, 2, Q("0.06 in")))
sketch10.addConstraint(Sketcher.Constraint("DistanceY", 35, 2, 35, 1, Q("0.04 in")))
sketch10.addConstraint(Sketcher.Constraint("DistanceY", 35, 2, -1, 1, Q("2.6 in")))
sketch10.addConstraint(Sketcher.Constraint("DistanceX", 45, 2, 45, 1, Q("0.015 in")))
sketch10.addConstraint(Sketcher.Constraint("DistanceY", 41, 2, -1, 1, Q("2.62 in")))
sketch10.addConstraint(Sketcher.Constraint("DistanceX", 58, 1, 58, 2, Q("0.0225 in")))
sketch10.addConstraint(Sketcher.Constraint("DistanceY", 22, 1, 22, 2, Q("1.997321 mm")))
sketch10.addConstraint(Sketcher.Constraint("DistanceY", 41, 1, 41, 2, Q("1.235321 mm")))
sketch10.addConstraint(Sketcher.Constraint("DistanceY", 49, 1, 49, 2, Q("0.40004 mm")))
sketch10.addConstraint(Sketcher.Constraint("DistanceY", 54, 2, 54, 1, Q("1.63613 mm")))
sketch10.addConstraint(Sketcher.Constraint("DistanceX", -1, 1, 0, 2, Q("10.681289 mm")))
sketch10.addConstraint(Sketcher.Constraint("DistanceX", -1, 1, 8, 2, Q("9.919289 mm")))
sketch10.addConstraint(Sketcher.Constraint("DistanceX", -1, 1, 20, 2, Q("6.109289 mm")))
sketch10.addConstraint(Sketcher.Constraint("DistanceX", -1, 1, 32, 2, Q("5.347289 mm")))
sketch10.addConstraint(Sketcher.Constraint("DistanceX", -1, 1, 44, 2, Q("3.061289 mm")))
pad5 = body.newObject("PartDesign::Pad", "Pad004")
pad5.Profile = sketch10
pad5.Length = Q("0.1 in")

doc.recompute()
